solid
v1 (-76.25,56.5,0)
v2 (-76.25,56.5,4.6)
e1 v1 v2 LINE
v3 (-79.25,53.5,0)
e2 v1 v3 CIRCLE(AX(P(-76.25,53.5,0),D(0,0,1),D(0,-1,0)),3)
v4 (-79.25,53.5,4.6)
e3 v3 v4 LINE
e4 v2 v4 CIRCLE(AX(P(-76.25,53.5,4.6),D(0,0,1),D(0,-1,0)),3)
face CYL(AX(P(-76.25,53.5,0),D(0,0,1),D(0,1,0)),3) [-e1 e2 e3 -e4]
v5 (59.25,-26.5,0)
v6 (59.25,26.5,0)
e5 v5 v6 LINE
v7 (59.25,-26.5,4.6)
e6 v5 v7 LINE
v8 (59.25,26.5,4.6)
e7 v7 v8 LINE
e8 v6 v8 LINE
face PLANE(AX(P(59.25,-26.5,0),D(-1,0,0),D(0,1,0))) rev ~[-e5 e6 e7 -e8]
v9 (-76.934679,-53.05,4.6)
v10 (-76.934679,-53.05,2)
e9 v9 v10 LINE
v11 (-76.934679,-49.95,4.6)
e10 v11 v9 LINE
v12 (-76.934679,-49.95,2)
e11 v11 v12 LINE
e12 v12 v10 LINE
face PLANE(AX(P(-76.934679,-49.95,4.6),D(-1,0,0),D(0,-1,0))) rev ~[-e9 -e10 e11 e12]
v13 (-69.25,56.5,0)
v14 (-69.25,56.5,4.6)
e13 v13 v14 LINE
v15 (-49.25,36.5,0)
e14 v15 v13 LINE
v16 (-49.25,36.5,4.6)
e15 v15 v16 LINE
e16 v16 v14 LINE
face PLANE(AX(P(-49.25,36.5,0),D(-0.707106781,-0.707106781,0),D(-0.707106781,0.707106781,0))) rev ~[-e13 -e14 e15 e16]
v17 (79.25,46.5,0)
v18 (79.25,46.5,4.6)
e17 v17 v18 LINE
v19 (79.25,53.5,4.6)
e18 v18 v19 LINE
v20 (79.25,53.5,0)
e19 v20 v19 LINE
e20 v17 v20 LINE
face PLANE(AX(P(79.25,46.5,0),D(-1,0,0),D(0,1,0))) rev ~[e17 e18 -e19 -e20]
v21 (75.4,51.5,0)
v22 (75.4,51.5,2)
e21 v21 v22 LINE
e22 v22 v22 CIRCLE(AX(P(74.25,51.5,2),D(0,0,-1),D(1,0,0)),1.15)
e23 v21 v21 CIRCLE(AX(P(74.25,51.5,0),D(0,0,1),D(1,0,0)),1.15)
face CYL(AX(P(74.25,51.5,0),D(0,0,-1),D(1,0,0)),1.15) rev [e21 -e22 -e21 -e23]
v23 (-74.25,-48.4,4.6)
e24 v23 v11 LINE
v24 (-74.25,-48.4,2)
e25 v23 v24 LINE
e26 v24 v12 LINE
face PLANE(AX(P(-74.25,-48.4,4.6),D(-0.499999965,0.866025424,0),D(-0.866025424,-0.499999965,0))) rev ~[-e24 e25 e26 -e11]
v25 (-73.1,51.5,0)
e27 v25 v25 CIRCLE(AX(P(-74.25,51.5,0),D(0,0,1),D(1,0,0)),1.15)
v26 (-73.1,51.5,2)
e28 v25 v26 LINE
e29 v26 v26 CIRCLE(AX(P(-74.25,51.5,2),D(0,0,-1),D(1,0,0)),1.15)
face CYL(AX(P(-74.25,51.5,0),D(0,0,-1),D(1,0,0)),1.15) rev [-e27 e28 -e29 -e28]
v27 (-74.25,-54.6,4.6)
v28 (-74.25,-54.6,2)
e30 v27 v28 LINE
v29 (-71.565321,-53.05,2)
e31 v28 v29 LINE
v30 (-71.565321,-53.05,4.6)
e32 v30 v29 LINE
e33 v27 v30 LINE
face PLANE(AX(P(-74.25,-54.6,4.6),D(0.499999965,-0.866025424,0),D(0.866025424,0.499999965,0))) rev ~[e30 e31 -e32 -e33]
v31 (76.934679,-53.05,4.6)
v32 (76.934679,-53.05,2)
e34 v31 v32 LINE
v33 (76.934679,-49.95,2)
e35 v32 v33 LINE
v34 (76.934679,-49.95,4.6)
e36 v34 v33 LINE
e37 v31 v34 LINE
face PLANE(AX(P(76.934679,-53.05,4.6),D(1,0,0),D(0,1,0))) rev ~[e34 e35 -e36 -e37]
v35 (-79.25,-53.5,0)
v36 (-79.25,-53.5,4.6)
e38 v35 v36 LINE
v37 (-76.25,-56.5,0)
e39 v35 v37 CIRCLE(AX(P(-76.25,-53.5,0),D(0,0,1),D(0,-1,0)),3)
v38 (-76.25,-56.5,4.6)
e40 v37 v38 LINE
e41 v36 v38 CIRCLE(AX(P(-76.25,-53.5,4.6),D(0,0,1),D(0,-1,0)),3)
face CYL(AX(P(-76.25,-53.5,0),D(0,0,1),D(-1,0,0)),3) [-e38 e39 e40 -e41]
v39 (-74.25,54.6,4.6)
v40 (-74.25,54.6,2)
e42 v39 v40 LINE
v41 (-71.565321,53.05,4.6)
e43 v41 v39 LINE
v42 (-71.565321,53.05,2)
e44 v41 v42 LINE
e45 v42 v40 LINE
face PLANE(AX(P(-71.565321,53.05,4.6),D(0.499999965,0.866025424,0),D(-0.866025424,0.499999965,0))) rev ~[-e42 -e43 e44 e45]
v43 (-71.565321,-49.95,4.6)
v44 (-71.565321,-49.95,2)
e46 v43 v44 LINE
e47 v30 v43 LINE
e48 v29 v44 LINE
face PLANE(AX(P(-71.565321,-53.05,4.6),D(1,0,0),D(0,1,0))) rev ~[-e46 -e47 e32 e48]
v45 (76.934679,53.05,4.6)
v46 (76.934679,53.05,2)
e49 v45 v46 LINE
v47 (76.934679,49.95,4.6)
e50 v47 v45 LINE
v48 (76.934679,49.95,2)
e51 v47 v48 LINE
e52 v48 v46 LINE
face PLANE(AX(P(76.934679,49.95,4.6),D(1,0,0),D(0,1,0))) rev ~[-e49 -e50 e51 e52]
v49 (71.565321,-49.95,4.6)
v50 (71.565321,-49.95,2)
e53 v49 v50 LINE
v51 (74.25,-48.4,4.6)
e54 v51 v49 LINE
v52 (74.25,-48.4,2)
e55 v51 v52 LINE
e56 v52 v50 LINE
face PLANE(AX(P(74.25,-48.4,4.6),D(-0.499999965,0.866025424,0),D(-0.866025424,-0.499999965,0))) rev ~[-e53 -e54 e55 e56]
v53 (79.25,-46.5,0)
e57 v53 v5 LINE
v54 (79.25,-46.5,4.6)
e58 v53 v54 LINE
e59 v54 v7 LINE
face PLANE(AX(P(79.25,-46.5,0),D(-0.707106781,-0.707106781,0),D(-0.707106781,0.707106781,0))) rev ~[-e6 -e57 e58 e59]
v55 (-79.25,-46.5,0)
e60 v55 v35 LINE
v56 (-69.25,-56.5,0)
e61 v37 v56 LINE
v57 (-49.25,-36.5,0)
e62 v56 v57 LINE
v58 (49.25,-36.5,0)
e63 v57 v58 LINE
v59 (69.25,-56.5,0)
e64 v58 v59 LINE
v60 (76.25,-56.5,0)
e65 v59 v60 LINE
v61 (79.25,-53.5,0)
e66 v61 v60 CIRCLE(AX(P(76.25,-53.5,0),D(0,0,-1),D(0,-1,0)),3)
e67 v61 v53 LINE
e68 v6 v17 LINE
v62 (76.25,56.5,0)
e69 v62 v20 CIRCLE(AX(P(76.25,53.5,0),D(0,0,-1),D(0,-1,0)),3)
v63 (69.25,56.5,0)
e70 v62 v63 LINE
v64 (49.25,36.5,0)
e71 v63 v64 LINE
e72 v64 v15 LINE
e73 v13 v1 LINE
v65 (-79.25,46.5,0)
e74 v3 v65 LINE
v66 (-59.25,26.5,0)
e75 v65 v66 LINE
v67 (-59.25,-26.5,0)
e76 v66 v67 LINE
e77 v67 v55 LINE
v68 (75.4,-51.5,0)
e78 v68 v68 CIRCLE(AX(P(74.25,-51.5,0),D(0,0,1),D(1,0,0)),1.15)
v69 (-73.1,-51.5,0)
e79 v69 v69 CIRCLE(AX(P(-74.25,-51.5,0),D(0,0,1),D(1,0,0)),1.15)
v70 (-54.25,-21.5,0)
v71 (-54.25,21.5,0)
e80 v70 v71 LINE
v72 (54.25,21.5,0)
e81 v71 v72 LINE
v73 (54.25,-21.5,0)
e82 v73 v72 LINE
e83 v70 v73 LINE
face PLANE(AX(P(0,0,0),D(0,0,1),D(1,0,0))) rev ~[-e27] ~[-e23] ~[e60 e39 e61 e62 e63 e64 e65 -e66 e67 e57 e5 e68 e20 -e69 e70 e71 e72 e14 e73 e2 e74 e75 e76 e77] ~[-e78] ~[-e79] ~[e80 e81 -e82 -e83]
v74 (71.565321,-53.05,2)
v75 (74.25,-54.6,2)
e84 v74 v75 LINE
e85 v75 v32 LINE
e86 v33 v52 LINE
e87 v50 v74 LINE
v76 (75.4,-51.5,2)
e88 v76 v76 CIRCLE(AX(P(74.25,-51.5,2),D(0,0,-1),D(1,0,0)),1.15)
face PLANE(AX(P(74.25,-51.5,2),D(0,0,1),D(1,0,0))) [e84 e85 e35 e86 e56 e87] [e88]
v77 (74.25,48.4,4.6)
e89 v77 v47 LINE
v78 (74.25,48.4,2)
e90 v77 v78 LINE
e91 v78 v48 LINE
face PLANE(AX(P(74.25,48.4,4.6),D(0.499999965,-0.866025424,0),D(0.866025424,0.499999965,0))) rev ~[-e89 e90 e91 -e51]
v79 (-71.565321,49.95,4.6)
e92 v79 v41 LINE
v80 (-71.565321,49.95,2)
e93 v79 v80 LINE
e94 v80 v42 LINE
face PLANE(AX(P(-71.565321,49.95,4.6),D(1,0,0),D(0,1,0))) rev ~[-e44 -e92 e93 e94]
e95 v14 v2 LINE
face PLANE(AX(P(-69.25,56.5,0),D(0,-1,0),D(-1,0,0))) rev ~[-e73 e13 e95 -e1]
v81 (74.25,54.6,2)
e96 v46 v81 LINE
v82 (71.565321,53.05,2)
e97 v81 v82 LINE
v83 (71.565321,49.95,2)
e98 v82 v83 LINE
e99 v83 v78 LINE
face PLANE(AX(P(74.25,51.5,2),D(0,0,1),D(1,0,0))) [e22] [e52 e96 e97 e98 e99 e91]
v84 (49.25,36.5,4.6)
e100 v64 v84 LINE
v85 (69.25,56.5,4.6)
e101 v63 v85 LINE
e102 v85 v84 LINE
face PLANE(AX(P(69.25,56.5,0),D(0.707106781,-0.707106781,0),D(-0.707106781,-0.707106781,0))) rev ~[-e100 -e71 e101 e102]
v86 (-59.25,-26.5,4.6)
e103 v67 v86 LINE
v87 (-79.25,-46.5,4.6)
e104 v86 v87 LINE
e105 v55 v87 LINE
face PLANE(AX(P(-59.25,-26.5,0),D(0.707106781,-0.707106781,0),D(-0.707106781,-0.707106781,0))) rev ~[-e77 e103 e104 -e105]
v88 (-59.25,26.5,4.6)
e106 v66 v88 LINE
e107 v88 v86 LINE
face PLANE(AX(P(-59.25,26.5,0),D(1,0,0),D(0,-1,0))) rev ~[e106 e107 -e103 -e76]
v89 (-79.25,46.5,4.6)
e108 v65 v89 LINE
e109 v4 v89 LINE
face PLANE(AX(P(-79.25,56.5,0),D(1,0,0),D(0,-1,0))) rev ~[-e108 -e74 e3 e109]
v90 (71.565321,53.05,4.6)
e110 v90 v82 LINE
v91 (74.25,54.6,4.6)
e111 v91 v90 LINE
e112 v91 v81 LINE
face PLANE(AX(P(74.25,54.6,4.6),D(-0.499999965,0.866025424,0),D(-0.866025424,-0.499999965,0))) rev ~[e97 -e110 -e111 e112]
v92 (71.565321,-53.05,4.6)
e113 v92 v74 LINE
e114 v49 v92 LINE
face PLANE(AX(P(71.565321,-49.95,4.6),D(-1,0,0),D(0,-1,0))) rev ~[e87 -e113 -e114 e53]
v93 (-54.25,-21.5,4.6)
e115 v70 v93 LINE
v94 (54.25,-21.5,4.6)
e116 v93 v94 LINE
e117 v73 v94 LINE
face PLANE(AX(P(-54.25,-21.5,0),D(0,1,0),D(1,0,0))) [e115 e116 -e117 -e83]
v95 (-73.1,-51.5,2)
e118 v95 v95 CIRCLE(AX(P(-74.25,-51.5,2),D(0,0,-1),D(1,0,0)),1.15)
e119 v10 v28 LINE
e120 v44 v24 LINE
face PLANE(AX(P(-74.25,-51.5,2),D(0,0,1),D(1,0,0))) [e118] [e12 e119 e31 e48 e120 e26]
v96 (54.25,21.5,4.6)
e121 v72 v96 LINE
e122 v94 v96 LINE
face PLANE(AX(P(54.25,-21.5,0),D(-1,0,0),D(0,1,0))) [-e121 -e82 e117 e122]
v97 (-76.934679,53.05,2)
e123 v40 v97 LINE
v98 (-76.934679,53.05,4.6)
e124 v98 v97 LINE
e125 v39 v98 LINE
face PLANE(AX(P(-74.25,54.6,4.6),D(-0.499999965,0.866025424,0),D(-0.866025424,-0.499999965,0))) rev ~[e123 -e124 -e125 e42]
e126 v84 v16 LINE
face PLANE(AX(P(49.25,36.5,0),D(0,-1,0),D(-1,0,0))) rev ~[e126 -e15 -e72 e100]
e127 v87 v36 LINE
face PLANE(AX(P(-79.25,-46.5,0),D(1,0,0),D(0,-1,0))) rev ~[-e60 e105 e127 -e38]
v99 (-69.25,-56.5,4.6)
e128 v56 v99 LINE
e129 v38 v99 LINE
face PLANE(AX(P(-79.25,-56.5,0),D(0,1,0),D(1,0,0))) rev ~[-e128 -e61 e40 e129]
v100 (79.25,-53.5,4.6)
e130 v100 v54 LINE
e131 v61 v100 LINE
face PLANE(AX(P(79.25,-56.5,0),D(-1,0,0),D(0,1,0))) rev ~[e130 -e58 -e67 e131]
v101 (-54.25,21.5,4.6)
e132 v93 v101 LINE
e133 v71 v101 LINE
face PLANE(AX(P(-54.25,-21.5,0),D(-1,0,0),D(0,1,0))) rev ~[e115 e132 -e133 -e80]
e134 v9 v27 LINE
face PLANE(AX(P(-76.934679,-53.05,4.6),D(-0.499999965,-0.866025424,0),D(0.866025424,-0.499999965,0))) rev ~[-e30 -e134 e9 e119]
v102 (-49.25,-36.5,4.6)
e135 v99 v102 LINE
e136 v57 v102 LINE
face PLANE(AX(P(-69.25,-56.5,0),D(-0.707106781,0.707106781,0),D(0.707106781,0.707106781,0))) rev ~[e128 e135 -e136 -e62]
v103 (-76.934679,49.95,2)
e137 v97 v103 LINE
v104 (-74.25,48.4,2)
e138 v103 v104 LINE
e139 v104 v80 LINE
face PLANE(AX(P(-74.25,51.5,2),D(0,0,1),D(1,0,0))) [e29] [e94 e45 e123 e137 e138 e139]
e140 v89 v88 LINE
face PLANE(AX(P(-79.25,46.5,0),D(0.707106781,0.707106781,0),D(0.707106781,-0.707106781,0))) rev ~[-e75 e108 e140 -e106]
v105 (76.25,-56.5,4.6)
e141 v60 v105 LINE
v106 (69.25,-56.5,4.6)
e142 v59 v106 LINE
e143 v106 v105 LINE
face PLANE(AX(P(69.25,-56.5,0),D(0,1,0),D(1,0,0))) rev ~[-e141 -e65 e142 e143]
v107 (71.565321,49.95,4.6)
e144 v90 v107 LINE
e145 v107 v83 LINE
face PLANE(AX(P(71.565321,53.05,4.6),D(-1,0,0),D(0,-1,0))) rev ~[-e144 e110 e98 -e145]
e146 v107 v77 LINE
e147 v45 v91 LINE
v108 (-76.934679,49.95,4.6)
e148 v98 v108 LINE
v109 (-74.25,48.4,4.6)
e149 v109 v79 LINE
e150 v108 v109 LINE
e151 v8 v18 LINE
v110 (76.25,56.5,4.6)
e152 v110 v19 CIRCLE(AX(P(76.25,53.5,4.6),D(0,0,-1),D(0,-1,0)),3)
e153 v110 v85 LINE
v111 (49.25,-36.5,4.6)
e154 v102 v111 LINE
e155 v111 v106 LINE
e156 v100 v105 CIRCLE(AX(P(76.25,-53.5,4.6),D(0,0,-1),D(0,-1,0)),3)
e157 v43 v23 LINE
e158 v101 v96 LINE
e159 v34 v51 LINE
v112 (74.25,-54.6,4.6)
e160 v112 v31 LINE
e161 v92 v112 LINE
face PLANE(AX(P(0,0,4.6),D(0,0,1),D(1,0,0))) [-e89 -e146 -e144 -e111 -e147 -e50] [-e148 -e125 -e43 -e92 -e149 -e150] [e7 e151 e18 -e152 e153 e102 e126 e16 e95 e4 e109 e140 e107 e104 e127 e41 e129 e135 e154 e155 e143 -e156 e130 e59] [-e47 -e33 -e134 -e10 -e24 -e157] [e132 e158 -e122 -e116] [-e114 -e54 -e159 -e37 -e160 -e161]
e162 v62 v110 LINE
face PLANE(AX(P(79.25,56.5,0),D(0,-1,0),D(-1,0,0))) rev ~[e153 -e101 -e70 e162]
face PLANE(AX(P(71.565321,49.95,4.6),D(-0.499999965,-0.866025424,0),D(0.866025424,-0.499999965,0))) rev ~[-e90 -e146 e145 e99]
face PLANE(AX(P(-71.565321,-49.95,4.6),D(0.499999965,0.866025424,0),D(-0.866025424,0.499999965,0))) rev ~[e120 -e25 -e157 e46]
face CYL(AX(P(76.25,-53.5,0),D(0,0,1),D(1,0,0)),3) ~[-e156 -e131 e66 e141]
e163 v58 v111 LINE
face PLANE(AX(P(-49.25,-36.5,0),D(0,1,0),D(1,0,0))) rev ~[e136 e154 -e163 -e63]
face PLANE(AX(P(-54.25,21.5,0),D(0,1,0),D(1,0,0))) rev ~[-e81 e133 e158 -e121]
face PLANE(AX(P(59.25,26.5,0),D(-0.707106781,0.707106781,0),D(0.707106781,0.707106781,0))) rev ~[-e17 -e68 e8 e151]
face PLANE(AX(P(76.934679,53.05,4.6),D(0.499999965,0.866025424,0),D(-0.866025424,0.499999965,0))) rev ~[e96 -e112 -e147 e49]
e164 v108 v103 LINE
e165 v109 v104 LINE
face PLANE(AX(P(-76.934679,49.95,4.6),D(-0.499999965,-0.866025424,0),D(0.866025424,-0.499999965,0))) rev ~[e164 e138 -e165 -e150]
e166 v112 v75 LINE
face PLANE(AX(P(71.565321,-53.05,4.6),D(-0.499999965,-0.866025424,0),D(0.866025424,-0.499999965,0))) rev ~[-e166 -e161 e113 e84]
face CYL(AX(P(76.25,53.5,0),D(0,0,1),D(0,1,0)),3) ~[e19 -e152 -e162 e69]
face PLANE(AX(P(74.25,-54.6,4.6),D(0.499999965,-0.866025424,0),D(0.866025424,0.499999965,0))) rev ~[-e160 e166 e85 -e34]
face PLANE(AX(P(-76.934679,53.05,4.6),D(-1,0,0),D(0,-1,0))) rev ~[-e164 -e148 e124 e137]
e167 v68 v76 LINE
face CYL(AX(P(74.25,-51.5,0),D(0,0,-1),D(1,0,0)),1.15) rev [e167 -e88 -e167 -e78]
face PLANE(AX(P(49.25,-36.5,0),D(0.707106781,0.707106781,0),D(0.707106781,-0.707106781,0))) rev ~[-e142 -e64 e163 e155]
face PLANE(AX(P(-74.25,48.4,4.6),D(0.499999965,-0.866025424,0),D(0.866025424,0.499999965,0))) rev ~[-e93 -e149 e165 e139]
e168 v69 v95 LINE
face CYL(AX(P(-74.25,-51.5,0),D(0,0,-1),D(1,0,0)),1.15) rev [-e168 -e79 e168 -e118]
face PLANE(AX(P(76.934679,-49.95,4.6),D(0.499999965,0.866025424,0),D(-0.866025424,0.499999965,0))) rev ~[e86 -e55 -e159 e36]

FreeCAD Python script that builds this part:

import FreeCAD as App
import Part
import Sketcher
Q = App.Units.Quantity


def edges_at(feature, points):
    """Names of the edges that pass closest to the given points."""
    edges = feature.Shape.Edges
    near = lambda p: min(range(len(edges)), key=lambda i: edges[i].distToShape(Part.Vertex(*p))[0])
    return sorted({f"Edge{near(p) + 1}" for p in points})


def add_polygon(sketch, points):
    """Adds a closed chain of lines whose ends are joined by coincident constraints."""
    first, n = sketch.GeometryCount, len(points)
    for a, b in zip(points, points[1:] + points[:1]):
        sketch.addGeometry(Part.LineSegment(App.Vector(*a, 0), App.Vector(*b, 0)), False)
    for i in range(n):
        sketch.addConstraint(Sketcher.Constraint("Coincident", first + i, 2, first + (i + 1) % n, 1))

doc = App.newDocument("Part")
body = doc.addObject("PartDesign::Body", "Body")

sketch1 = doc.addObject("Sketcher::SketchObject", "Sketch")
body.addObject(sketch1)
sketch1.AttachmentSupport = (doc.XY_Plane, [""])
sketch1.MapMode = "FlatFace"
add_polygon(sketch1, [(-69.2, 56.5), (-79.2, 56.5), (-79.2, 46.5), (-59.2, 26.5), (-59.2, -26.5), (-79.2, -46.5), (-79.2, -56.5), (-69.2, -56.5), (-49.2, -36.5), (49.2, -36.5), (69.2, -56.5), (79.2, -56.5), (79.2, -46.5), (59.2, -26.5), (59.2, 26.5), (79.2, 46.5), (79.2, 56.5), (69.2, 56.5), (49.2, 36.5), (-49.2, 36.5)])
sketch1.addGeometry(Part.Circle(App.Vector(-74.2, -51.5, 0), App.Vector(0, 0, 1), 1.1), False)
sketch1.addGeometry(Part.Circle(App.Vector(74.2, -51.5, 0), App.Vector(0, 0, 1), 1.1), False)
sketch1.addGeometry(Part.Circle(App.Vector(-74.2, 51.5, 0), App.Vector(0, 0, 1), 1.1), False)
add_polygon(sketch1, [(54.2, -21.5), (-54.2, -21.5), (-54.2, 21.5), (54.2, 21.5)])
sketch1.addGeometry(Part.Circle(App.Vector(74.2, 51.5, 0), App.Vector(0, 0, 1), 1.1), False)
sketch1.addConstraint([
    Sketcher.Constraint("Horizontal", 0),
    Sketcher.Constraint("Vertical", 1),
    Sketcher.Constraint("Vertical", 3),
    Sketcher.Constraint("Vertical", 5),
    Sketcher.Constraint("Horizontal", 6),
    Sketcher.Constraint("Horizontal", 8),
    Sketcher.Constraint("Horizontal", 10),
    Sketcher.Constraint("Vertical", 11),
    Sketcher.Constraint("Vertical", 13),
    Sketcher.Constraint("Vertical", 15),
    Sketcher.Constraint("Horizontal", 16),
    Sketcher.Constraint("Horizontal", 18),
    Sketcher.Constraint("Horizontal", 23),
    Sketcher.Constraint("Vertical", 24),
    Sketcher.Constraint("Horizontal", 25),
    Sketcher.Constraint("Vertical", 26),
    Sketcher.Constraint("Equal", 20, 21),
    Sketcher.Constraint("Equal", 21, 22),
    Sketcher.Constraint("Equal", 22, 27),
    Sketcher.Constraint("Symmetric", 21, 3, 22, 3, -1, 1),
    Sketcher.Constraint("Symmetric", 20, 3, 27, 3, -1, 1),
    Sketcher.Constraint("Symmetric", 0, 2, 10, 2, -1, 1),
    Sketcher.Constraint("Symmetric", 2, 2, 12, 2, -1, 1),
    Sketcher.Constraint("Symmetric", 4, 2, 14, 2, -1, 1),
    Sketcher.Constraint("Symmetric", 6, 2, 16, 2, -1, 1),
    Sketcher.Constraint("Symmetric", 7, 2, 17, 2, -1, 1),
    Sketcher.Constraint("Symmetric", 23, 2, 25, 2, -1, 1),
    Sketcher.Constraint("Symmetric", 20, 3, 21, 3, -2),
    Sketcher.Constraint("Symmetric", 6, 2, 9, 2, -2),
    Sketcher.Constraint("Symmetric", 4, 2, 11, 2, -2),
    Sketcher.Constraint("Perpendicular", 2, 4),
    Sketcher.Constraint("Parallel", 4, 7),
    Sketcher.Constraint("Perpendicular", 7, 9),
    Sketcher.Constraint("Parallel", 9, 12),
    Sketcher.Constraint("Perpendicular", 12, 14),
    Sketcher.Constraint("Perpendicular", 17, 19),
    Sketcher.Constraint("Horizontal", 3, 2, 12, 2),
    Sketcher.Constraint("Vertical", 7, 2, 18, 2),
    Sketcher.Constraint("Equal", 16, 1),
    Sketcher.Constraint("Equal", 4, 7),
    Sketcher.Constraint("Diameter", 20, 2.3),
    Sketcher.Constraint("DistanceX", 0, 2, 0, 1, 10.0),
    Sketcher.Constraint("DistanceY", 3, 2, 3, 1, 53.0),
    Sketcher.Constraint("DistanceY", 24, 1, 24, 2, 43.0),
    Sketcher.Constraint("DistanceX", 8, 1, 8, 2, 98.5),
    Sketcher.Constraint("DistanceX", 23, 2, 23, 1, 108.5),
    Sketcher.Constraint("DistanceY", 20, 3, 22, 3, 103.0),
    Sketcher.Constraint("DistanceX", 0, 2, 22, 3, 5.0),
    Sketcher.Constraint("DistanceY", 22, 3, 0, 2, 5.0),
])
pad1 = doc.addObject("PartDesign::Pad", "Pad")
body.addObject(pad1)
pad1.Profile = sketch1
pad1.Length = 4.6
doc.recompute()

fillet = doc.addObject("PartDesign::Fillet", "Fillet")
body.addObject(fillet)
fillet.Base = (pad1, edges_at(pad1, [
    (79.25, -56.5, 2.3),
    (79.25, 56.5, 2.3),
    (-79.25, 56.5, 2.3),
    (-79.25, -56.5, 2.3),
]))
fillet.Radius = 3

sketch2 = doc.addObject("Sketcher::SketchObject", "Sketch001")
body.addObject(sketch2)
sketch2.AttachmentSupport = (doc.XY_Plane, [""])
sketch2.MapMode = "FlatFace"
sketch2.AttachmentOffset = App.Placement(App.Vector(0, 0, 4.6), App.Rotation())
add_polygon(sketch2, [(-71.6, 50), (-71.6, 53), (-74.2, 54.6), (-76.9, 53), (-76.9, 50), (-74.2, 48.4)])
add_polygon(sketch2, [(-71.6, -53), (-71.6, -50), (-74.2, -48.4), (-76.9, -50), (-76.9, -53), (-74.2, -54.6)])
add_polygon(sketch2, [(76.9, -53), (76.9, -50), (74.2, -48.4), (71.6, -50), (71.6, -53), (74.2, -54.6)])
add_polygon(sketch2, [(76.9, 50), (76.9, 53), (74.2, 54.6), (71.6, 53), (71.6, 50), (74.2, 48.4)])
sketch2.addConstraint([
    Sketcher.Constraint("Vertical", 0),
    Sketcher.Constraint("Vertical", 3),
    Sketcher.Constraint("Vertical", 6),
    Sketcher.Constraint("Vertical", 9),
    Sketcher.Constraint("Vertical", 12),
    Sketcher.Constraint("Vertical", 15),
    Sketcher.Constraint("Vertical", 18),
    Sketcher.Constraint("Vertical", 21),
    Sketcher.Constraint("Symmetric", 3, 2, 12, 2, -1, 1),
    Sketcher.Constraint("Symmetric", 4, 2, 13, 2, -1, 1),
    Sketcher.Constraint("Symmetric", 5, 2, 14, 2, -1, 1),
    Sketcher.Constraint("Symmetric", 1, 2, 16, 2, -1, 1),
    Sketcher.Constraint("Symmetric", 9, 2, 18, 2, -1, 1),
    Sketcher.Constraint("Symmetric", 10, 2, 19, 2, -1, 1),
    Sketcher.Constraint("Symmetric", 11, 2, 20, 2, -1, 1),
    Sketcher.Constraint("Symmetric", 7, 2, 22, 2, -1, 1),
    Sketcher.Constraint("Symmetric", 8, 2, 12, 2, -2),
    Sketcher.Constraint("Symmetric", 7, 2, 13, 2, -2),
    Sketcher.Constraint("Symmetric", 6, 2, 14, 2, -2),
    Sketcher.Constraint("Symmetric", 10, 2, 16, 2, -2),
    Sketcher.Constraint("Parallel", 1, 4),
    Sketcher.Constraint("Parallel", 2, 5),
    Sketcher.Constraint("Parallel", 4, 7),
    Sketcher.Constraint("Parallel", 7, 10),
    Sketcher.Constraint("Parallel", 8, 11),
    Sketcher.Constraint("Parallel", 13, 16),
    Sketcher.Constraint("Parallel", 14, 17),
    Sketcher.Constraint("Parallel", 19, 22),
    Sketcher.Constraint("Parallel", 20, 23),
    Sketcher.Constraint("Horizontal", 0, 2, 2, 2),
    Sketcher.Constraint("Horizontal", 3, 2, 5, 2),
    Sketcher.Constraint("Angle", 1, Q("150.000002 deg")),
    Sketcher.Constraint("DistanceY", 0, 1, 0, 2, 3.1),
    Sketcher.Constraint("DistanceY", 6, 2, 0, 2, 103.0),
    Sketcher.Constraint("Distance", 1, 3.1),
    Sketcher.Constraint("DistanceX", 6, 2, 12, 2, 148.5),
])
pocket1 = doc.addObject("PartDesign::Pocket", "Pocket")
body.addObject(pocket1)
pocket1.Profile = sketch2
pocket1.Length = 2.6

doc.recompute()
